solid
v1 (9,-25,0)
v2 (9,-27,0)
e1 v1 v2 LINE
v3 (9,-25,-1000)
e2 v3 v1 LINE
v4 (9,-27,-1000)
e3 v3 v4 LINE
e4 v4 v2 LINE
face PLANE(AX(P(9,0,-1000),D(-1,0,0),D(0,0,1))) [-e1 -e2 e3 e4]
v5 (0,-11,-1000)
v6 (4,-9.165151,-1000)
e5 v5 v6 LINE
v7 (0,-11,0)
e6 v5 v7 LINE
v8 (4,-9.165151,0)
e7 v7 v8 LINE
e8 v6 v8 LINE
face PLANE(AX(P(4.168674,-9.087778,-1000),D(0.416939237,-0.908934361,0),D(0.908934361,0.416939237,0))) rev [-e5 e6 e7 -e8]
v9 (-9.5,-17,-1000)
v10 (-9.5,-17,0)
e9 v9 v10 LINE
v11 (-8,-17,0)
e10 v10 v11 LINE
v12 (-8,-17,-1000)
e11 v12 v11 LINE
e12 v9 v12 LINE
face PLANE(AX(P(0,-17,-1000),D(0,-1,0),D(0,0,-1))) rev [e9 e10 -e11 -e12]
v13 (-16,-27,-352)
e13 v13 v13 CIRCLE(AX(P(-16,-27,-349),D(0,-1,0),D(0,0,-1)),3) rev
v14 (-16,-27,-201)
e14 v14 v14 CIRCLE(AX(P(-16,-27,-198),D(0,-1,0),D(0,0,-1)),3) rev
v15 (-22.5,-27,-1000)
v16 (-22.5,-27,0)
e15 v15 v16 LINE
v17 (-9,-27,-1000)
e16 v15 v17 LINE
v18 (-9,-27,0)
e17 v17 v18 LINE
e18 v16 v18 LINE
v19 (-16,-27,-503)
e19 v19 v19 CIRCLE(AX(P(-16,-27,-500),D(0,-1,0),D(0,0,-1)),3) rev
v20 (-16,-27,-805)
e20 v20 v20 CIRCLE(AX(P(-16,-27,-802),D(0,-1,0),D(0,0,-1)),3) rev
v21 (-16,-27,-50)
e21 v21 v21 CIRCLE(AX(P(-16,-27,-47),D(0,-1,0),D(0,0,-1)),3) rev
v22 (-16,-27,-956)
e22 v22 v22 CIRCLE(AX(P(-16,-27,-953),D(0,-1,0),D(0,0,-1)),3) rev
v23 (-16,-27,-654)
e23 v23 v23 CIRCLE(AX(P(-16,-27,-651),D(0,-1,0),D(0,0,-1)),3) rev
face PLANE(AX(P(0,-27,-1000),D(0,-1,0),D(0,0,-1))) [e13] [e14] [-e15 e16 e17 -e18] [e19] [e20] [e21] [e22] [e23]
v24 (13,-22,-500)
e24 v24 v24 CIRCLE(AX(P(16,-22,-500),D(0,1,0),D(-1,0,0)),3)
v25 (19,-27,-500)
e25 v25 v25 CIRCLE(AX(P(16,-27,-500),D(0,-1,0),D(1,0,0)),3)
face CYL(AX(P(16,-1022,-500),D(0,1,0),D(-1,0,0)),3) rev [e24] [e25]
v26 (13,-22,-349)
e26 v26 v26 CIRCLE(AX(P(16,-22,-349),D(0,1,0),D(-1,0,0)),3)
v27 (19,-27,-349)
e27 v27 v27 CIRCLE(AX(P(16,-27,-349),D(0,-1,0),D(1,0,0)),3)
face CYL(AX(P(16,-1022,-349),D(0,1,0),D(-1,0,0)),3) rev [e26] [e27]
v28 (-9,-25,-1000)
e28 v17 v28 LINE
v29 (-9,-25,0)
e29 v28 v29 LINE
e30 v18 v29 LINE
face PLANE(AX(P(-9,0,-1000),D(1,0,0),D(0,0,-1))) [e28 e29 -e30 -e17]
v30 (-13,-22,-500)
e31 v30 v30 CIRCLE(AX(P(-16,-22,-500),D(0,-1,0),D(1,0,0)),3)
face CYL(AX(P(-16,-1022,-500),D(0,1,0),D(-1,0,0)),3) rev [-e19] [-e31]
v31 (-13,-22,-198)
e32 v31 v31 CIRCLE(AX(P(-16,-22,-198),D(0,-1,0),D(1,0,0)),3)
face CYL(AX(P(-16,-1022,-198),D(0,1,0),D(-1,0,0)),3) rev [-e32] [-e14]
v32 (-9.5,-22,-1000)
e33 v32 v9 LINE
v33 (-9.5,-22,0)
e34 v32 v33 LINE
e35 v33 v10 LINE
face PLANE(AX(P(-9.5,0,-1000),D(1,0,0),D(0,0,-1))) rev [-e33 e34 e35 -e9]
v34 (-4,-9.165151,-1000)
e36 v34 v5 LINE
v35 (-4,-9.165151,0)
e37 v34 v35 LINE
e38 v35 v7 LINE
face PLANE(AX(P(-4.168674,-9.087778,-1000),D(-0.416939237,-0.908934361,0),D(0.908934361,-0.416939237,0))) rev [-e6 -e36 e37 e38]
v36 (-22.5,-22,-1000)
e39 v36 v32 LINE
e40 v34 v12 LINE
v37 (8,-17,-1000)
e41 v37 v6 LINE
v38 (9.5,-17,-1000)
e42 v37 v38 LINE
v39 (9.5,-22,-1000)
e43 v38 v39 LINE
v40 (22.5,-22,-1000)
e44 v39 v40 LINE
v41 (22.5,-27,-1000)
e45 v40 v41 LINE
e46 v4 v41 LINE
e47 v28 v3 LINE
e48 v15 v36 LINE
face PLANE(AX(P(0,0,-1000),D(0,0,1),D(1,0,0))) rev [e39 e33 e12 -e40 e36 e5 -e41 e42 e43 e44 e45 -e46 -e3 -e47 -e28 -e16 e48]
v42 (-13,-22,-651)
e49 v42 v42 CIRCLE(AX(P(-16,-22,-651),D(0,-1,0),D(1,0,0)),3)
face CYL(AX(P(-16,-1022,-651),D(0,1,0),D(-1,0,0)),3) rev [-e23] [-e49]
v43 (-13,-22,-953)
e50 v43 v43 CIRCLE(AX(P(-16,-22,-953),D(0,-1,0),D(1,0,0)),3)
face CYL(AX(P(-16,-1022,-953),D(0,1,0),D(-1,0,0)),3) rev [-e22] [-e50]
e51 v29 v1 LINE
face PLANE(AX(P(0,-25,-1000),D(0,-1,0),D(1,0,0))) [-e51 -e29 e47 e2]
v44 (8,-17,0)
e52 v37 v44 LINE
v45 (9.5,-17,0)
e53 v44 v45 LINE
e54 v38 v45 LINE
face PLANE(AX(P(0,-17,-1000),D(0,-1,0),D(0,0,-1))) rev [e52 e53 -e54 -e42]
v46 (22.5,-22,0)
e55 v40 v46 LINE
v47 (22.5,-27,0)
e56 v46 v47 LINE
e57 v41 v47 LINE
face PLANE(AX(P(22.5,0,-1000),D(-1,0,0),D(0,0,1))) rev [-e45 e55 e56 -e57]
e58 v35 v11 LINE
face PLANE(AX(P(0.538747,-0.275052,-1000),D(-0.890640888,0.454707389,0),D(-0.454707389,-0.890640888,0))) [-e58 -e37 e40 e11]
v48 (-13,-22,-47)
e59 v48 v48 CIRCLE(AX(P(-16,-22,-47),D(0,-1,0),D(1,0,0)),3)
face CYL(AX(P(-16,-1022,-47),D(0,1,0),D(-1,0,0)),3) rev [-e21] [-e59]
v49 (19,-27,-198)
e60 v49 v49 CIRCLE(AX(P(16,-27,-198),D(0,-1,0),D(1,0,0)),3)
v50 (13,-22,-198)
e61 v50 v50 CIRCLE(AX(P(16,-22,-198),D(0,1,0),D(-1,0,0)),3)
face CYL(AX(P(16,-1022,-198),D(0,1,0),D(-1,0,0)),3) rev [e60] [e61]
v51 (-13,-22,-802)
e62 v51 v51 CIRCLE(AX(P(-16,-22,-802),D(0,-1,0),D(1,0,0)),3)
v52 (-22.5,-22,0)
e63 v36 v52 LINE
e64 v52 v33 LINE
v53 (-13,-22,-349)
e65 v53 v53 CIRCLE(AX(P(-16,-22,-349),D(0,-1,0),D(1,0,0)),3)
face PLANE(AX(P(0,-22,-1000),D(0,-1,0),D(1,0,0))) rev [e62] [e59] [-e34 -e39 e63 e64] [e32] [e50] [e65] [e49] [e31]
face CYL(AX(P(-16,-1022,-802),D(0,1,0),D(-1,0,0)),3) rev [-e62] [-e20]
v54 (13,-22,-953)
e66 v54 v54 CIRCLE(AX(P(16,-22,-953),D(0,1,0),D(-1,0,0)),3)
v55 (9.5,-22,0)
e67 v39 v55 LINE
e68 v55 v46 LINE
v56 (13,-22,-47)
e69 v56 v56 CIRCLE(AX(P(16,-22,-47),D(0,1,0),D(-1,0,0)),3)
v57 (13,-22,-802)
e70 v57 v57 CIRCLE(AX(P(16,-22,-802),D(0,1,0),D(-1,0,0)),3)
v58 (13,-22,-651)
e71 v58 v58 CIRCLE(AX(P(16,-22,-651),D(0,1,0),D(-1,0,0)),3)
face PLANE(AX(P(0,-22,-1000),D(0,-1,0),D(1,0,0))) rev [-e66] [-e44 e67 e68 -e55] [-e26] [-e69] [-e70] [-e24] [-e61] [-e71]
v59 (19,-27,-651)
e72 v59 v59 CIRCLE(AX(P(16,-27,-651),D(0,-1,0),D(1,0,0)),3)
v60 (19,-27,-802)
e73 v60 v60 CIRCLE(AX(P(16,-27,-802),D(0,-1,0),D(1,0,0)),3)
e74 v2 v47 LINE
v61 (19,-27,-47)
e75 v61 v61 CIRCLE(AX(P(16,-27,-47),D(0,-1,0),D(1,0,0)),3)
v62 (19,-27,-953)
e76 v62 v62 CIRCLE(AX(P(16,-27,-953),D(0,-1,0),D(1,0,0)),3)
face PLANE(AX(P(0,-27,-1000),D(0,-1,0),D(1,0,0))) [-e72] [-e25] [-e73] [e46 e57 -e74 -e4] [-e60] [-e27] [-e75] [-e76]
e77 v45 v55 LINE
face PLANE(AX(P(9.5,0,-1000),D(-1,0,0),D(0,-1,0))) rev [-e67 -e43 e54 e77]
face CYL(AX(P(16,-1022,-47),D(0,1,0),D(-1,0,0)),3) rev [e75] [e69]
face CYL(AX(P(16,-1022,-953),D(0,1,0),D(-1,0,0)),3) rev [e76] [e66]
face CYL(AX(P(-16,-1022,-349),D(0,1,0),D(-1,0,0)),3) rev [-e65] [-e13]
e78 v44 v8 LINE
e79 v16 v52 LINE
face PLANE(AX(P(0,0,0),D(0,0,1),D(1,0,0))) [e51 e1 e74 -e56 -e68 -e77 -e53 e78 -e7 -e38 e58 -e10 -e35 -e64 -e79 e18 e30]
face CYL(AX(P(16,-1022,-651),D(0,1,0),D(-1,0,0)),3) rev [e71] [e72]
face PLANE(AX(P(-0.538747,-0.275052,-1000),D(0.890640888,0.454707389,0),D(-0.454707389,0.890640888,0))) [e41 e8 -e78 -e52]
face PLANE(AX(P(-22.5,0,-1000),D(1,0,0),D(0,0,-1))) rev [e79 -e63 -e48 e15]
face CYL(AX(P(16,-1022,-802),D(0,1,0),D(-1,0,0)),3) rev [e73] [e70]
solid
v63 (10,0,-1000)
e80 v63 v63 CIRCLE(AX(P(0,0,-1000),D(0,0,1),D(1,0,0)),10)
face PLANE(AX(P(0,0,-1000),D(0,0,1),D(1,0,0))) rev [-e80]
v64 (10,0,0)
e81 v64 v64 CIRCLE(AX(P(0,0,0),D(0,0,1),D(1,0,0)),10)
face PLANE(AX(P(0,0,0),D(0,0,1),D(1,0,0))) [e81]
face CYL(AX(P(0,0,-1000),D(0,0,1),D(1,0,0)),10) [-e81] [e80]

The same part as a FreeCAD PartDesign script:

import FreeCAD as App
import Part
import Sketcher

V = App.Vector
Q = App.Units.Quantity

doc = App.newDocument("Part")
body = doc.addObject("PartDesign::Body", "Body")

# Sketch on XY plane
sketch1 = body.newObject("Sketcher::SketchObject", "Sketch")
sketch1.AttachmentSupport = (doc.getObject("XY_Plane"), [""])
sketch1.MapMode = "FlatFace"
sketch1.addGeometry(Part.Circle(V(0, 0, 0), V(0, 0, 1), 10), False)
sketch1.addConstraint(Sketcher.Constraint("Coincident", 0, 3, -1, 1))
sketch1.addConstraint(Sketcher.Constraint("Diameter", 0, Q("20 mm")))
pad1 = body.newObject("PartDesign::Pad", "Pad")
pad1.Profile = sketch1
pad1.Length = 1000
pad1.Reversed = True
body2 = doc.addObject("PartDesign::Body", "Body001")

# Sketch on XY plane
sketch2 = body2.newObject("Sketcher::SketchObject", "Sketch001")
sketch2.AttachmentSupport = (doc.getObject("XY_Plane001"), [""])
sketch2.MapMode = "FlatFace"
sketch2.addGeometry(Part.LineSegment(V(-22.5, -27, 0), V(-9, -27, 0)), False)
sketch2.addGeometry(Part.LineSegment(V(-9, -27, 0), V(-9, -25, 0)), False)
sketch2.addGeometry(Part.LineSegment(V(-9, -25, 0), V(9, -25, 0)), False)
sketch2.addGeometry(Part.LineSegment(V(9, -25, 0), V(9, -27, 0)), False)
sketch2.addGeometry(Part.LineSegment(V(9, -27, 0), V(22.5, -27, 0)), False)
sketch2.addGeometry(Part.LineSegment(V(22.5, -27, 0), V(22.5, -22, 0)), False)
sketch2.addGeometry(Part.LineSegment(V(22.5, -22, 0), V(9.5, -22, 0)), False)
sketch2.addGeometry(Part.LineSegment(V(9.5, -22, 0), V(9.5, -17, 0)), False)
sketch2.addGeometry(Part.LineSegment(V(9.5, -17, 0), V(8, -17, 0)), False)
sketch2.addGeometry(Part.LineSegment(V(8, -17, 0), V(4, -9.2, 0)), False)
sketch2.addGeometry(Part.LineSegment(V(4, -9.2, 0), V(0, -11, 0)), False)
sketch2.addGeometry(Part.LineSegment(V(0, -11, 0), V(-4, -9.2, 0)), False)
sketch2.addGeometry(Part.LineSegment(V(-4, -9.2, 0), V(-8, -17, 0)), False)
sketch2.addGeometry(Part.LineSegment(V(-8, -17, 0), V(-9.5, -17, 0)), False)
sketch2.addGeometry(Part.LineSegment(V(-9.5, -17, 0), V(-9.5, -22, 0)), False)
sketch2.addGeometry(Part.LineSegment(V(-9.5, -22, 0), V(-22.5, -22, 0)), False)
sketch2.addGeometry(Part.LineSegment(V(-22.5, -22, 0), V(-22.5, -27, 0)), False)
sketch2.addConstraint(Sketcher.Constraint("Coincident", 0, 2, 1, 1))
sketch2.addConstraint(Sketcher.Constraint("Coincident", 1, 2, 2, 1))
sketch2.addConstraint(Sketcher.Constraint("Coincident", 2, 2, 3, 1))
sketch2.addConstraint(Sketcher.Constraint("Coincident", 3, 2, 4, 1))
sketch2.addConstraint(Sketcher.Constraint("Coincident", 4, 2, 5, 1))
sketch2.addConstraint(Sketcher.Constraint("Coincident", 5, 2, 6, 1))
sketch2.addConstraint(Sketcher.Constraint("Coincident", 6, 2, 7, 1))
sketch2.addConstraint(Sketcher.Constraint("Coincident", 7, 2, 8, 1))
sketch2.addConstraint(Sketcher.Constraint("Coincident", 8, 2, 9, 1))
sketch2.addConstraint(Sketcher.Constraint("Coincident", 9, 2, 10, 1))
sketch2.addConstraint(Sketcher.Constraint("Coincident", 10, 2, 11, 1))
sketch2.addConstraint(Sketcher.Constraint("Coincident", 11, 2, 12, 1))
sketch2.addConstraint(Sketcher.Constraint("Coincident", 12, 2, 13, 1))
sketch2.addConstraint(Sketcher.Constraint("Coincident", 13, 2, 14, 1))
sketch2.addConstraint(Sketcher.Constraint("Coincident", 14, 2, 15, 1))
sketch2.addConstraint(Sketcher.Constraint("Coincident", 15, 2, 16, 1))
sketch2.addConstraint(Sketcher.Constraint("Coincident", 16, 2, 0, 1))
sketch2.addConstraint(Sketcher.Constraint("Horizontal", 0))
sketch2.addConstraint(Sketcher.Constraint("Vertical", 1))
sketch2.addConstraint(Sketcher.Constraint("Horizontal", 2))
sketch2.addConstraint(Sketcher.Constraint("Vertical", 3))
sketch2.addConstraint(Sketcher.Constraint("Horizontal", 4))
sketch2.addConstraint(Sketcher.Constraint("Vertical", 5))
sketch2.addConstraint(Sketcher.Constraint("Horizontal", 6))
sketch2.addConstraint(Sketcher.Constraint("Vertical", 7))
sketch2.addConstraint(Sketcher.Constraint("Horizontal", 8))
sketch2.addConstraint(Sketcher.Constraint("Horizontal", 13))
sketch2.addConstraint(Sketcher.Constraint("Vertical", 14))
sketch2.addConstraint(Sketcher.Constraint("Horizontal", 15))
sketch2.addConstraint(Sketcher.Constraint("Vertical", 16))
sketch2.addConstraint(Sketcher.Constraint("Symmetric", 0, 2, 3, 2, -2))
sketch2.addConstraint(Sketcher.Constraint("Symmetric", 9, 2, 11, 2, -2))
sketch2.addConstraint(Sketcher.Constraint("Symmetric", 8, 2, 12, 2, -2))
sketch2.addConstraint(Sketcher.Constraint("Symmetric", 6, 2, 14, 2, -2))
sketch2.addConstraint(Sketcher.Constraint("PointOnObject", 10, 2, -2))
sketch2.addConstraint(Sketcher.Constraint("Equal", 0, 4))
sketch2.addConstraint(Sketcher.Constraint("Equal", 5, 7))
sketch2.addConstraint(Sketcher.Constraint("DistanceX", 2, 1, 2, 2, Q("18 mm")))
sketch2.addConstraint(Sketcher.Constraint("DistanceX", 6, 2, 6, 1, Q("13 mm")))
sketch2.addConstraint(Sketcher.Constraint("DistanceY", 1, 1, 1, 2, Q("2 mm")))
sketch2.addConstraint(Sketcher.Constraint("DistanceY", 5, 1, 5, 2, Q("5 mm")))
sketch2.addConstraint(Sketcher.Constraint("DistanceX", 0, 1, 0, 2, Q("13.5 mm")))
sketch2.addConstraint(Sketcher.Constraint("DistanceX", 8, 2, 8, 1, Q("1.5 mm")))
sketch2.addConstraint(Sketcher.Constraint("DistanceY", 0, 2, -1, 1, Q("27 mm")))
sketch2.addConstraint(Sketcher.Constraint("DistanceX", -1, 1, 9, 2, Q("4 mm")))
sketch2.addConstraint(Sketcher.Constraint("DistanceY", 10, 2, -1, 1, Q("11 mm")))
sketch2.addConstraint(Sketcher.Constraint("DistanceY", 9, 2, -1, 1, Q("9.165151 mm")))
pad2 = body2.newObject("PartDesign::Pad", "Pad001")
pad2.Profile = sketch2
pad2.Length = 1000
pad2.Reversed = True

# Sketch on XZ plane
sketch3 = body2.newObject("Sketcher::SketchObject", "Sketch002")
sketch3.AttachmentSupport = (doc.getObject("XZ_Plane001"), [""])
sketch3.MapMode = "FlatFace"
sketch3.AttachmentOffset = App.Placement(V(0, 0, 22), App.Rotation())
sketch3.addGeometry(Part.Circle(V(16, -47, 0), V(0, 0, 1), 3), False)
sketch3.addGeometry(Part.Circle(V(16, -198, 0), V(0, 0, 1), 3), False)
sketch3.addGeometry(Part.Circle(V(16, -349, 0), V(0, 0, 1), 3), False)
sketch3.addGeometry(Part.Circle(V(16, -500, 0), V(0, 0, 1), 3), False)
sketch3.addGeometry(Part.Circle(V(16, -651, 0), V(0, 0, 1), 3), False)
sketch3.addGeometry(Part.Circle(V(16, -802, 0), V(0, 0, 1), 3), False)
sketch3.addGeometry(Part.Circle(V(16, -953, 0), V(0, 0, 1), 3), False)
sketch3.addConstraint(Sketcher.Constraint("Equal", 0, 1))
sketch3.addConstraint(Sketcher.Constraint("Equal", 1, 2))
sketch3.addConstraint(Sketcher.Constraint("Equal", 2, 3))
sketch3.addConstraint(Sketcher.Constraint("Equal", 3, 4))
sketch3.addConstraint(Sketcher.Constraint("Equal", 4, 5))
sketch3.addConstraint(Sketcher.Constraint("Equal", 5, 6))
sketch3.addConstraint(Sketcher.Constraint("Vertical", 0, 3, 1, 3))
sketch3.addConstraint(Sketcher.Constraint("Vertical", 1, 3, 2, 3))
sketch3.addConstraint(Sketcher.Constraint("Vertical", 2, 3, 3, 3))
sketch3.addConstraint(Sketcher.Constraint("Vertical", 3, 3, 4, 3))
sketch3.addConstraint(Sketcher.Constraint("Vertical", 4, 3, 5, 3))
sketch3.addConstraint(Sketcher.Constraint("Vertical", 5, 3, 6, 3))
sketch3.addConstraint(Sketcher.Constraint("Diameter", 0, Q("6 mm")))
sketch3.addConstraint(Sketcher.Constraint("DistanceX", -1, 1, 0, 3, Q("16 mm")))
sketch3.addConstraint(Sketcher.Constraint("DistanceY", 0, 3, -1, 1, Q("47 mm")))
sketch3.addConstraint(Sketcher.Constraint("DistanceY", 1, 3, -1, 1, Q("198 mm")))
sketch3.addConstraint(Sketcher.Constraint("DistanceY", 2, 3, -1, 1, Q("349 mm")))
sketch3.addConstraint(Sketcher.Constraint("DistanceY", 3, 3, -1, 1, Q("500 mm")))
sketch3.addConstraint(Sketcher.Constraint("DistanceY", 4, 3, -1, 1, Q("651 mm")))
sketch3.addConstraint(Sketcher.Constraint("DistanceY", 5, 3, -1, 1, Q("802 mm")))
sketch3.addConstraint(Sketcher.Constraint("DistanceY", 6, 3, -1, 1, Q("953 mm")))
pocket1 = body2.newObject("PartDesign::Pocket", "Pocket")
pocket1.Profile = sketch3
pocket1.Length = 1000
pocket1.Reversed = True
doc.recompute()

mirrored = body2.newObject("PartDesign::Mirrored", "Mirrored")
mirrored.Originals = [pocket1]
mirrored.MirrorPlane = (doc.getObject("YZ_Plane001"), [""])
body2.Tip = mirrored

doc.recompute()
